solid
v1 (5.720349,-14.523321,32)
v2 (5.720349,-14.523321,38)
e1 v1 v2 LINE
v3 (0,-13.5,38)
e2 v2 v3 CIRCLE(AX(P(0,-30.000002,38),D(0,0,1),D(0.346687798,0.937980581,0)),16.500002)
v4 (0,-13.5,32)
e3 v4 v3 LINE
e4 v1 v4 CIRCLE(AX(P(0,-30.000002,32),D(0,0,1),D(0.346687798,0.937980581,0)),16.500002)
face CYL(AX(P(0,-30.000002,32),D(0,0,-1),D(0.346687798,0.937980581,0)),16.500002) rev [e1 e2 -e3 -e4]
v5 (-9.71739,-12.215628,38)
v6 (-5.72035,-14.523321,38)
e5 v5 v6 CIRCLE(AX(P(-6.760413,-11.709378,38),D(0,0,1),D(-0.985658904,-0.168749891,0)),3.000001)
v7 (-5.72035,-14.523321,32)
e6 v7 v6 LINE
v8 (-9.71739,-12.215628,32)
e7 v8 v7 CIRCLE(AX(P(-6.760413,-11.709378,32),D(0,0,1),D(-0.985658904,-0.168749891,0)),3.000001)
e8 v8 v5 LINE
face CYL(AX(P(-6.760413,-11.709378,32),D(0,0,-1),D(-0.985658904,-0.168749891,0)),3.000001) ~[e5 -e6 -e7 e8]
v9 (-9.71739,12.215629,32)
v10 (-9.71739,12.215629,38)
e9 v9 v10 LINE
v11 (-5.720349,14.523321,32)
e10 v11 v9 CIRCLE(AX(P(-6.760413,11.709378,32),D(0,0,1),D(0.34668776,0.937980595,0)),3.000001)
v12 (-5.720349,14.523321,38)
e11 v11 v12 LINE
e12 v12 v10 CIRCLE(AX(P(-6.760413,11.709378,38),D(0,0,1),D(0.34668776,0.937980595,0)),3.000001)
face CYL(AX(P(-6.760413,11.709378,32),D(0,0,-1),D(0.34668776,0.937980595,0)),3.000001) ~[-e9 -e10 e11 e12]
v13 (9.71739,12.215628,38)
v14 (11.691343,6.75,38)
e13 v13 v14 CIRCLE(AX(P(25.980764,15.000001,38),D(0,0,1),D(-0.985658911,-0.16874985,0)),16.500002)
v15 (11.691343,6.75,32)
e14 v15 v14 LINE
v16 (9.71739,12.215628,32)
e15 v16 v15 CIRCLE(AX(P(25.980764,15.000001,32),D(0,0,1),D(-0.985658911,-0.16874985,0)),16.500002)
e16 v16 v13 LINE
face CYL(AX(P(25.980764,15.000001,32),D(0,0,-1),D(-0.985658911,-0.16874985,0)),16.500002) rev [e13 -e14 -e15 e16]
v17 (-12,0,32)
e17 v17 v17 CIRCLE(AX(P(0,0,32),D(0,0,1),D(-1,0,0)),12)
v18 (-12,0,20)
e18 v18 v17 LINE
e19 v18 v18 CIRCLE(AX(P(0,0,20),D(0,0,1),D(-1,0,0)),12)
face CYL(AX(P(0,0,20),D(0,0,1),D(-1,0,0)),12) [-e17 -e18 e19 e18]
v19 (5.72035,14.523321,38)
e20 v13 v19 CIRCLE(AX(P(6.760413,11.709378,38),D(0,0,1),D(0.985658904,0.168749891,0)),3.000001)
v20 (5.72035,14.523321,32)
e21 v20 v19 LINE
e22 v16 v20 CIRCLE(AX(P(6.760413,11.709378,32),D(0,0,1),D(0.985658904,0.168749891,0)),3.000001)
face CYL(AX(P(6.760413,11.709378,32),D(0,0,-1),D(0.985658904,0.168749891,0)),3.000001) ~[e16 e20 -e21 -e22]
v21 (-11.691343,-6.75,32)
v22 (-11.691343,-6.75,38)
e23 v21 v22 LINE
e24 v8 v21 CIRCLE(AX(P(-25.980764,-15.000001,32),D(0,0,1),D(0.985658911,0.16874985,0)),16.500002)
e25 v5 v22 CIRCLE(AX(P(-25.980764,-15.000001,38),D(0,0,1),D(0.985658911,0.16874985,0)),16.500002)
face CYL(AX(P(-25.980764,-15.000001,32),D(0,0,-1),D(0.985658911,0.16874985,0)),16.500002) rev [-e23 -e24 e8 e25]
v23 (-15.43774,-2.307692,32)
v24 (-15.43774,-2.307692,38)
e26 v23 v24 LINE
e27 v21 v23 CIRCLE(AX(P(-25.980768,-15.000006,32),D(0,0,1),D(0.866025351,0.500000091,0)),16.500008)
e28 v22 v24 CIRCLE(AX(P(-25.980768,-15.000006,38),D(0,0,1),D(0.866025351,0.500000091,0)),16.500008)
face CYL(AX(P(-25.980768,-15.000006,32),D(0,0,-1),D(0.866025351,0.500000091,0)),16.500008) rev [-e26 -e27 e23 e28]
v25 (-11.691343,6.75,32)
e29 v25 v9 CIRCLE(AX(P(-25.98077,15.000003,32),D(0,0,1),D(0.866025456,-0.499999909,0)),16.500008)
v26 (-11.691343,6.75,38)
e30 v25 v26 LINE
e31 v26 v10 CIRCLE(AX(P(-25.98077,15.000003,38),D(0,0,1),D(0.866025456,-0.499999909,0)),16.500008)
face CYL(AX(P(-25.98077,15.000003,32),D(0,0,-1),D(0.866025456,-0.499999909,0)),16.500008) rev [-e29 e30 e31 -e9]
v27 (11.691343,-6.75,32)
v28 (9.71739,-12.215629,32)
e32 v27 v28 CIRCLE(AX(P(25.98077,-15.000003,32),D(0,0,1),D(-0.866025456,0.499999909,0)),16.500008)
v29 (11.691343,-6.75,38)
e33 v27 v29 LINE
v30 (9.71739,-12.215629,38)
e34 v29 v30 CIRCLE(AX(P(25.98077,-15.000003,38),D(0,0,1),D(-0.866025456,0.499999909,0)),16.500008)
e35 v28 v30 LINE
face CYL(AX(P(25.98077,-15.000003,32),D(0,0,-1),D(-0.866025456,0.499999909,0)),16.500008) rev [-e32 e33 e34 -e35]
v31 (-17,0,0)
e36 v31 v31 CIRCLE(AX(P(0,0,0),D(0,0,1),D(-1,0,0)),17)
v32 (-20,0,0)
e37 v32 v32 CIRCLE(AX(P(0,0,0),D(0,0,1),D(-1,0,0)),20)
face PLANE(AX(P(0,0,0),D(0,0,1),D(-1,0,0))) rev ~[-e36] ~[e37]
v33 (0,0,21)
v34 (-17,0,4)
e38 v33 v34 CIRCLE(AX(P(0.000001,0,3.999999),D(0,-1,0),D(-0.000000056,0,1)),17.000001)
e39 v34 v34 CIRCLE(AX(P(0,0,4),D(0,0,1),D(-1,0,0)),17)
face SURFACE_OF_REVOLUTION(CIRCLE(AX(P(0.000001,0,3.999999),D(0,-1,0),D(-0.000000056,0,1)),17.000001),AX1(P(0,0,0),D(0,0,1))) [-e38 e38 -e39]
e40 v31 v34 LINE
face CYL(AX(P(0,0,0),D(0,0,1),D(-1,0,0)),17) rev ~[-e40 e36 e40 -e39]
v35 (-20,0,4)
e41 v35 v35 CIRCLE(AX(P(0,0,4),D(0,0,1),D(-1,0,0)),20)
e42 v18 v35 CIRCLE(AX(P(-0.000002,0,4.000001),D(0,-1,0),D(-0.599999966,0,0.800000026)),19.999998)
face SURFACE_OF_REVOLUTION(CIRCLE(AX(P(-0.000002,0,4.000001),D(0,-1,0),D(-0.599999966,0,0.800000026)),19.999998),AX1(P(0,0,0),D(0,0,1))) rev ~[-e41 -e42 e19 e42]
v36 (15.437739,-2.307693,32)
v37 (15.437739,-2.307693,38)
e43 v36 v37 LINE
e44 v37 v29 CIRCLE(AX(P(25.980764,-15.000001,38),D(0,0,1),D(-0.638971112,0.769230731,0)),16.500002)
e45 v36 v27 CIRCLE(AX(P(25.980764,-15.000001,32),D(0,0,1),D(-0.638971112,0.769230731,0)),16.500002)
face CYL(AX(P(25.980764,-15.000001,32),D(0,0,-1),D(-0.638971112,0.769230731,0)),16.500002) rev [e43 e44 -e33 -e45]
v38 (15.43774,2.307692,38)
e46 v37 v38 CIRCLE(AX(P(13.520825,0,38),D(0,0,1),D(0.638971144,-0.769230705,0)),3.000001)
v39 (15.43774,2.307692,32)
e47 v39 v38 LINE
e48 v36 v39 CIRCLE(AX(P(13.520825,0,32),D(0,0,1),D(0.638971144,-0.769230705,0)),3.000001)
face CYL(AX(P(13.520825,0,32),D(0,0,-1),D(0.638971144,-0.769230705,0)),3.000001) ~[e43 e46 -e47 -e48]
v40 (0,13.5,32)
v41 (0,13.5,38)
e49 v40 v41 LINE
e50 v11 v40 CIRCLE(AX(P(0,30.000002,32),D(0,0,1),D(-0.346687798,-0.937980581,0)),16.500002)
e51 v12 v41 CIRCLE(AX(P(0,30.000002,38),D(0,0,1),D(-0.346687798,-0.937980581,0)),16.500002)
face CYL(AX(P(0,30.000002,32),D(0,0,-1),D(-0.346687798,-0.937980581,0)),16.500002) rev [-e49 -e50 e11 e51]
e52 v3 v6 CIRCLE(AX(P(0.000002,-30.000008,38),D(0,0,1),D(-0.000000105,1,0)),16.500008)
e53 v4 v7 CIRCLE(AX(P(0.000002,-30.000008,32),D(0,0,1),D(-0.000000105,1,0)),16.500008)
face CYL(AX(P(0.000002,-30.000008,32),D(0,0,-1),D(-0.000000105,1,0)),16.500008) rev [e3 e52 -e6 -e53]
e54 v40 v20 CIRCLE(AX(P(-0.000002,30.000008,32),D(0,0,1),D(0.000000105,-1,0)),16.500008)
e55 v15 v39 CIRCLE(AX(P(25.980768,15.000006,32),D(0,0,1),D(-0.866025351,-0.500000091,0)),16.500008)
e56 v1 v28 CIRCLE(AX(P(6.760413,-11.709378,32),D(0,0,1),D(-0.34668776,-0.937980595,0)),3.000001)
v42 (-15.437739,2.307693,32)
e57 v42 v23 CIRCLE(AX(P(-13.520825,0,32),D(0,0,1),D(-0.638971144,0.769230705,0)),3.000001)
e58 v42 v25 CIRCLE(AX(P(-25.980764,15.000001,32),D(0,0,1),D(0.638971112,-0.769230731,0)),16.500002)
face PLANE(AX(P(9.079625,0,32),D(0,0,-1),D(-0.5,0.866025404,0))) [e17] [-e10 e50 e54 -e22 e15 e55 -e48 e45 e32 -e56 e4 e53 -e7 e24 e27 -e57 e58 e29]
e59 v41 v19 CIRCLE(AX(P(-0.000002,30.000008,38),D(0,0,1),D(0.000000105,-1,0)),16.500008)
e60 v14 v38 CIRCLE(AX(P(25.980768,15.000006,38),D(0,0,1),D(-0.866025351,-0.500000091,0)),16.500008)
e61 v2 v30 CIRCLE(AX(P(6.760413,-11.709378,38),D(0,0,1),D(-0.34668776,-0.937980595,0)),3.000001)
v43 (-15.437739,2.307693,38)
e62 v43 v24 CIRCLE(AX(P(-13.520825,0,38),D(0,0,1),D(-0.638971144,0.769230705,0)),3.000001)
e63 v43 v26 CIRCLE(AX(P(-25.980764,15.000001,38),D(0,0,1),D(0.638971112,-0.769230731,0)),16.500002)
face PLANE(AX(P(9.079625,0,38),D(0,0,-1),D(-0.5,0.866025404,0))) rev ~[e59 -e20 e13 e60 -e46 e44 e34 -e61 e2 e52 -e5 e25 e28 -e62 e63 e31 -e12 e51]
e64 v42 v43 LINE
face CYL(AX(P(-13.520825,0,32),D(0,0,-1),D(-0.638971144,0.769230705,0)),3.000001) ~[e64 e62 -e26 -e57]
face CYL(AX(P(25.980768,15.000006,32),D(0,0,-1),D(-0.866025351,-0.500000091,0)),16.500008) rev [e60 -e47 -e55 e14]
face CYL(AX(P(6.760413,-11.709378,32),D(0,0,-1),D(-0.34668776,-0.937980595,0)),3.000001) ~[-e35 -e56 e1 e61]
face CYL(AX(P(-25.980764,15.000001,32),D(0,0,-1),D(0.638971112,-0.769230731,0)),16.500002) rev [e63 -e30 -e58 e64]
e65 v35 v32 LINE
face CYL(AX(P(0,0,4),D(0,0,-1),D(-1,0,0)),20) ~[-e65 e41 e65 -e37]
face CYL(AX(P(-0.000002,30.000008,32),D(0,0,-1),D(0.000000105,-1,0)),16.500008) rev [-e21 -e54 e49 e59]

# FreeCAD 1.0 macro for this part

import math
import FreeCAD as App
import Part
import Sketcher
from FreeCAD import Vector
Q = App.Units.Quantity

doc = App.newDocument("Part")
body = doc.addObject("PartDesign::Body", "Body")

sketch1 = body.newObject("Sketcher::SketchObject", "Sketch")
sketch1.AttachmentSupport = (doc.getObject("XZ_Plane"), [""])
sketch1.MapMode = "FlatFace"
sketch1.addGeometry(Part.LineSegment(Vector(0, 21, 0), Vector(0, 32, 0)), False)
sketch1.addGeometry(Part.LineSegment(Vector(0, 32, 0), Vector(-12, 32, 0)), False)
sketch1.addGeometry(Part.LineSegment(Vector(-12, 32, 0), Vector(-12, 20, 0)), False)
sketch1.addGeometry(Part.ArcOfCircle(Part.Circle(Vector(-0.000002, 4.000001, 0), Vector(0, 0, 1), 19.999998), math.radians(126.869895), math.radians(180.000002)), False)
sketch1.addGeometry(Part.LineSegment(Vector(-20, 4, 0), Vector(-20, 0, 0)), False)
sketch1.addGeometry(Part.LineSegment(Vector(-20, 0, 0), Vector(-17, 0, 0)), False)
sketch1.addGeometry(Part.LineSegment(Vector(-17, 0, 0), Vector(-17, 4, 0)), False)
sketch1.addGeometry(Part.ArcOfCircle(Part.Circle(Vector(0.000001, 3.999999, 0), Vector(0, 0, 1), 17.000001), math.radians(90.000003), math.radians(179.999997)), False)
sketch1.addConstraint(Sketcher.Constraint("Coincident", 0, 2, 1, 1))
sketch1.addConstraint(Sketcher.Constraint("Coincident", 1, 2, 2, 1))
sketch1.addConstraint(Sketcher.Constraint("Coincident", 2, 2, 3, 1))
sketch1.addConstraint(Sketcher.Constraint("Tangent", 3, 2, 4, 1))
sketch1.addConstraint(Sketcher.Constraint("Coincident", 4, 2, 5, 1))
sketch1.addConstraint(Sketcher.Constraint("Coincident", 5, 2, 6, 1))
sketch1.addConstraint(Sketcher.Constraint("Tangent", 6, 2, 7, 2))
sketch1.addConstraint(Sketcher.Constraint("Coincident", 7, 1, 0, 1))
sketch1.addConstraint(Sketcher.Constraint("Vertical", 0))
sketch1.addConstraint(Sketcher.Constraint("Horizontal", 1))
sketch1.addConstraint(Sketcher.Constraint("Vertical", 2))
sketch1.addConstraint(Sketcher.Constraint("Vertical", 4))
sketch1.addConstraint(Sketcher.Constraint("Horizontal", 5))
sketch1.addConstraint(Sketcher.Constraint("Vertical", 6))
sketch1.addConstraint(Sketcher.Constraint("Coincident", 7, 3, 3, 3))
sketch1.addConstraint(Sketcher.Constraint("PointOnObject", 3, 3, -2))
sketch1.addConstraint(Sketcher.Constraint("PointOnObject", 0, 2, -2))
sketch1.addConstraint(Sketcher.Constraint("PointOnObject", 4, 2, -1))
sketch1.addConstraint(Sketcher.Constraint("Equal", 1, 2))
sketch1.addConstraint(Sketcher.Constraint("Radius", 3, Q("19.999998 mm")))
sketch1.addConstraint(Sketcher.Constraint("Radius", 7, Q("17.000001 mm")))
sketch1.addConstraint(Sketcher.Constraint("DistanceX", 1, 2, 1, 1, Q("12 mm")))
sketch1.addConstraint(Sketcher.Constraint("DistanceY", 4, 2, 4, 1, Q("4 mm")))
revolution = body.newObject("PartDesign::Revolution", "Revolution")
revolution.Profile = sketch1
revolution.ReferenceAxis = (sketch1, ["V_Axis"])
revolution.Angle = 360

sketch2 = body.newObject("Sketcher::SketchObject", "Sketch001")
sketch2.AttachmentSupport = (doc.getObject("XY_Plane"), [""])
sketch2.MapMode = "FlatFace"
sketch2.AttachmentOffset = App.Placement(Vector(0, 0, 32), App.Rotation())
sketch2.addGeometry(Part.ArcOfCircle(Part.Circle(Vector(-0.000002, 30.000008, 0), Vector(0, 0, 1), 16.500008), math.radians(-89.999994), math.radians(-69.71514)), False)
sketch2.addGeometry(Part.LineSegment(Vector(0, 13.5, 0), Vector(0, 0, 0)), False)
sketch2.addGeometry(Part.LineSegment(Vector(0, 0, 0), Vector(11.691343, 6.75, 0)), False)
sketch2.addGeometry(Part.ArcOfCircle(Part.Circle(Vector(25.980764, 15.000001, 0), Vector(0, 0, 1), 16.500002), math.radians(-170.284859), math.radians(-150.000001)), False)
sketch2.addGeometry(Part.ArcOfCircle(Part.Circle(Vector(6.760413, 11.709378, 0), Vector(0, 0, 1), 3.000001), math.radians(9.715143), math.radians(110.284838)), False)
sketch2.addConstraint(Sketcher.Constraint("Coincident", 0, 1, 1, 1))
sketch2.addConstraint(Sketcher.Constraint("Coincident", 1, 2, 2, 1))
sketch2.addConstraint(Sketcher.Constraint("Coincident", 2, 2, 3, 2))
sketch2.addConstraint(Sketcher.Constraint("Tangent", 3, 1, 4, 1))
sketch2.addConstraint(Sketcher.Constraint("Tangent", 4, 2, 0, 2))
sketch2.addConstraint(Sketcher.Constraint("Vertical", 1))
sketch2.addConstraint(Sketcher.Constraint("Coincident", 1, 2, -1, 1))
sketch2.addConstraint(Sketcher.Constraint("PointOnObject", 0, 3, -2))
sketch2.addConstraint(Sketcher.Constraint("Radius", 4, Q("3.000001 mm")))
sketch2.addConstraint(Sketcher.Constraint("Angle", 2, Q("30 deg")))
sketch2.addConstraint(Sketcher.Constraint("DistanceY", 1, 2, 1, 1, Q("13.5 mm")))
sketch2.addConstraint(Sketcher.Constraint("DistanceY", -1, 1, 3, 3, Q("15.000001 mm")))
sketch2.addConstraint(Sketcher.Constraint("Distance", 2, Q("13.5 mm")))
sketch2.addConstraint(Sketcher.Constraint("Radius", 0, Q("16.500008 mm")))
sketch2.addConstraint(Sketcher.Constraint("Radius", 3, Q("16.500002 mm")))
pad1 = body.newObject("PartDesign::Pad", "Pad")
pad1.Profile = sketch2
pad1.Length = 6
doc.recompute()

polarpattern = body.newObject("PartDesign::PolarPattern", "PolarPattern")
polarpattern.Originals = [pad1]
polarpattern.Axis = (doc.getObject("Z_Axis"), [""])
polarpattern.Angle = 360
polarpattern.Occurrences = 6
body.Tip = polarpattern

doc.recompute()
